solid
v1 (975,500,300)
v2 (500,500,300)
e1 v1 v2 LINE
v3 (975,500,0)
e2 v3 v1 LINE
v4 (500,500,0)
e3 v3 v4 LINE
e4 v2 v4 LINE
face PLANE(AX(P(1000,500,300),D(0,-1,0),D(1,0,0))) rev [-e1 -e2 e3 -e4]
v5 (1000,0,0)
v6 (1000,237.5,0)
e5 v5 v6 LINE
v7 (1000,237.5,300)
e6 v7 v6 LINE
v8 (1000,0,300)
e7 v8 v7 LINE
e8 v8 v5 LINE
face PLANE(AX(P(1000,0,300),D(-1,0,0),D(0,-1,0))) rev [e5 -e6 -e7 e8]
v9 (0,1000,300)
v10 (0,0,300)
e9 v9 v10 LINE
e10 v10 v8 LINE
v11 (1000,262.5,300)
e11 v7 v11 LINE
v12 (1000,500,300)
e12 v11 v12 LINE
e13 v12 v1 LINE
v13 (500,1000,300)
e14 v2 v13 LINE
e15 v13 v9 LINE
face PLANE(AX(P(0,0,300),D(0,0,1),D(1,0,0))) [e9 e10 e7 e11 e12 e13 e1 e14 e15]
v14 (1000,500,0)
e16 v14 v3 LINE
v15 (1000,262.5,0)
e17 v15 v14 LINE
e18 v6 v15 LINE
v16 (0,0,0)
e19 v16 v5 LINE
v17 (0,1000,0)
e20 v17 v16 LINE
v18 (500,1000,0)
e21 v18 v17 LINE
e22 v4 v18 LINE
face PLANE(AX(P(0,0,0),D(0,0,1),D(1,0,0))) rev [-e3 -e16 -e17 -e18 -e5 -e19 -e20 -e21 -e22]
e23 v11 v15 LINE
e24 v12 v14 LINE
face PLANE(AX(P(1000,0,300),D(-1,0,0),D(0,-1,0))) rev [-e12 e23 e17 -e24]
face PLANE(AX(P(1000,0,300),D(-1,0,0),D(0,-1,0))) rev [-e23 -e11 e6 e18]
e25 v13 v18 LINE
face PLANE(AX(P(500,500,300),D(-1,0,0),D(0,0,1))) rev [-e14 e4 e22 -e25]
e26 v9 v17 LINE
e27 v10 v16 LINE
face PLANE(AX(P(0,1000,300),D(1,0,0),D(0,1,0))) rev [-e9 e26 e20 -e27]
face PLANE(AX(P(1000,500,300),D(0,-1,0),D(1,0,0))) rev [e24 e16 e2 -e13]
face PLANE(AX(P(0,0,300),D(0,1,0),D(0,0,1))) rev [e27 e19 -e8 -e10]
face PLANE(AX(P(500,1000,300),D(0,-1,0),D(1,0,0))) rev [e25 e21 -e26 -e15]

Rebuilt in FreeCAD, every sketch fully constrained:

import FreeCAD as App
import Part
import Sketcher

V = App.Vector


def add_polygon(sketch, points):
    """Adds a closed chain of lines whose ends are joined by coincident constraints."""
    first, n = sketch.GeometryCount, len(points)
    for a, b in zip(points, points[1:] + points[:1]):
        sketch.addGeometry(Part.LineSegment(App.Vector(*a, 0), App.Vector(*b, 0)), False)
    for i in range(n):
        sketch.addConstraint(Sketcher.Constraint("Coincident", first + i, 2, first + (i + 1) % n, 1))

doc = App.newDocument("Part")
body = doc.addObject("PartDesign::Body", "Body")

# Sketch on XY plane
sketch1 = doc.addObject("Sketcher::SketchObject", "Sketch")
body.addObject(sketch1)
sketch1.AttachmentSupport = (doc.XY_Plane, [""])
sketch1.MapMode = "FlatFace"
add_polygon(sketch1, [(0, 0), (1000, 0), (1000, 500), (500, 500), (500, 1000), (0, 1000)])  # lines 0-5
sketch1.addConstraint([
    Sketcher.Constraint("Horizontal", 0),
    Sketcher.Constraint("Vertical", 1),
    Sketcher.Constraint("Horizontal", 2),
    Sketcher.Constraint("Vertical", 3),
    Sketcher.Constraint("Horizontal", 4),
    Sketcher.Constraint("Vertical", 5),
    Sketcher.Constraint("Coincident", 5, 2, -1, 1),
    Sketcher.Constraint("Equal", 2, 4),
    Sketcher.Constraint("Equal", 4, 1),
    Sketcher.Constraint("Equal", 1, 3),
    Sketcher.Constraint("DistanceX", 0, 1, 0, 2, 1000.0),
])
pad1 = doc.addObject("PartDesign::Pad", "Pad")
body.addObject(pad1)
pad1.Profile = sketch1
pad1.Length = 300

doc.recompute()
